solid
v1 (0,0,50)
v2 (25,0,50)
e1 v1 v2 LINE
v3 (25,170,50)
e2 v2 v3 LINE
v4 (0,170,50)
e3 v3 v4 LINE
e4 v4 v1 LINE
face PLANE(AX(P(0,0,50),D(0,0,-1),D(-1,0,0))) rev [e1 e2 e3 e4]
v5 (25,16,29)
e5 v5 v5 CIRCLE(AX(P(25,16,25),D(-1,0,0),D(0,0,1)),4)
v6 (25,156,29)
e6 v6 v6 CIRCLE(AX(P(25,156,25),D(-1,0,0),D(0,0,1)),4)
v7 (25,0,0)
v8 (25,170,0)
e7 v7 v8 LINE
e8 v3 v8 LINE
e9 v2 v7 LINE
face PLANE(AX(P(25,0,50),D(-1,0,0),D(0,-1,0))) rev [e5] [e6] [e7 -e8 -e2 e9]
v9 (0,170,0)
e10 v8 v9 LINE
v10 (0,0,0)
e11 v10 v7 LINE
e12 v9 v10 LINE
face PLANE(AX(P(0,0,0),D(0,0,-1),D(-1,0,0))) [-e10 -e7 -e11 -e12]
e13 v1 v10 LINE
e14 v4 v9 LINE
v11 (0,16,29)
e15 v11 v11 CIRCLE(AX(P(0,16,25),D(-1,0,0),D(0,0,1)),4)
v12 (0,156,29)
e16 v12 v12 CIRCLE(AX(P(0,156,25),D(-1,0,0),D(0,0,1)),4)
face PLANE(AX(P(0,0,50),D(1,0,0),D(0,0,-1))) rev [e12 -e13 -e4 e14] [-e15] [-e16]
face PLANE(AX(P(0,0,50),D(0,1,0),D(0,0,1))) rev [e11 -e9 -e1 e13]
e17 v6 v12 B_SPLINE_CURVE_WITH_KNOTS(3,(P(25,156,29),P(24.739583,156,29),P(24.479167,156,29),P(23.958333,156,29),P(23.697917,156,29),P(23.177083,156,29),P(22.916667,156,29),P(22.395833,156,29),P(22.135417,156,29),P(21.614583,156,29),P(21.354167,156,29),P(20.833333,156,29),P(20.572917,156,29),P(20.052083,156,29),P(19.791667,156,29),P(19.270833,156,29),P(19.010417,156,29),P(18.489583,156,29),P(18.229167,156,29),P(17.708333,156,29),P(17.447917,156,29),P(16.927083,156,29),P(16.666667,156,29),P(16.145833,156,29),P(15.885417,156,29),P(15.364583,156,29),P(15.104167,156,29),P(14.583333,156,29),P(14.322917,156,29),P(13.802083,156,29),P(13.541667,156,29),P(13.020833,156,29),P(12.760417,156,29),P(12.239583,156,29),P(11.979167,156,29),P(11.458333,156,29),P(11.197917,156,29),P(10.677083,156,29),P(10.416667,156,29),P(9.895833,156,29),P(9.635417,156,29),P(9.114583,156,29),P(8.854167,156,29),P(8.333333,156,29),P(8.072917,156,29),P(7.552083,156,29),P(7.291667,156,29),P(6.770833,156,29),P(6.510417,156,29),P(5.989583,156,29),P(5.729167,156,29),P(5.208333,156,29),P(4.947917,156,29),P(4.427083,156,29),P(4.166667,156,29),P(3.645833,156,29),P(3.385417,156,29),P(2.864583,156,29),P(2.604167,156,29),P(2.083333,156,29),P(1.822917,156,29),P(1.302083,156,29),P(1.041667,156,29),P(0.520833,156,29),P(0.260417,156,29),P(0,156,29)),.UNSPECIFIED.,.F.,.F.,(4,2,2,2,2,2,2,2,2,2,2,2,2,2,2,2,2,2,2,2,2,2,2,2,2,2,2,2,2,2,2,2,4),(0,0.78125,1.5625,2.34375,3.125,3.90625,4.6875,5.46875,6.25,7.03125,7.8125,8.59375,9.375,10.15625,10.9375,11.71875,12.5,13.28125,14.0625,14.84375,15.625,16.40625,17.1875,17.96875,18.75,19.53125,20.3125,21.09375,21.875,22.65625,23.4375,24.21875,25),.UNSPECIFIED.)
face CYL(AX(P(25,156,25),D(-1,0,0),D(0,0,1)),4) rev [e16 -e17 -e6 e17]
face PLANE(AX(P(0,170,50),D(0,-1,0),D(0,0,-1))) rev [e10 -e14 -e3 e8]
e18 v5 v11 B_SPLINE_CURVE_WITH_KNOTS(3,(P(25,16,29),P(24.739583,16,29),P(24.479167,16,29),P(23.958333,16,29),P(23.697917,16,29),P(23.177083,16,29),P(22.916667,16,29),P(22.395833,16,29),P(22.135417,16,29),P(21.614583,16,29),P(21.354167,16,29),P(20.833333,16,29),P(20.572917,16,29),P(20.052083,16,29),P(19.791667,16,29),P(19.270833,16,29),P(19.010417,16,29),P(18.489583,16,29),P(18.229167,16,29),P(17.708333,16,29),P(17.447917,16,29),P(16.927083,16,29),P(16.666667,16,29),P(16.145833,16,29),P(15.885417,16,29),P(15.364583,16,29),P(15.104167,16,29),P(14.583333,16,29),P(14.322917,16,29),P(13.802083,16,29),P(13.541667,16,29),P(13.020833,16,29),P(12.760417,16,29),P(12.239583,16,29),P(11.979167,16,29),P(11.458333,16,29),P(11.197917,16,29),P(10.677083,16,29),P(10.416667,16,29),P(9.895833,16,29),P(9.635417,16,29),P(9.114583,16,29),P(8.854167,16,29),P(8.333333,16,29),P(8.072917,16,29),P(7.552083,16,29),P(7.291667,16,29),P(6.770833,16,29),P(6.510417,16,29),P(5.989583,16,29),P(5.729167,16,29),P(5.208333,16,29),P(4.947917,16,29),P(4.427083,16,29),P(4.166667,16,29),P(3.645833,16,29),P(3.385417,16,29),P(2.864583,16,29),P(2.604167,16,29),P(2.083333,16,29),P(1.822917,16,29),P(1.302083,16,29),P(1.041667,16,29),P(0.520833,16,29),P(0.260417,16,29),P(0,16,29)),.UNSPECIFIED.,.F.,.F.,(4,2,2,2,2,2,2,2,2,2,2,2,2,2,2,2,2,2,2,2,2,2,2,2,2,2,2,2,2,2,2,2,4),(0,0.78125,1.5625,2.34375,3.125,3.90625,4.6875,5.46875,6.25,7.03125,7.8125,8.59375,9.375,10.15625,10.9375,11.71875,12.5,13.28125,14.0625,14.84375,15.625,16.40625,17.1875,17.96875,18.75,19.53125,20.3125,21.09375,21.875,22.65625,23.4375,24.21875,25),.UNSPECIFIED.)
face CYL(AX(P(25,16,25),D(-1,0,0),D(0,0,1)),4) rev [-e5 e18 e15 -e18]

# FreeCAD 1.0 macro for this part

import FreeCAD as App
import Part
import Sketcher
Q = App.Units.Quantity

doc = App.newDocument("Part")
body = doc.addObject("PartDesign::Body", "Body")

# Sketch on XY plane
sketch1 = body.newObject("Sketcher::SketchObject", "Sketch")
sketch1.AttachmentSupport = (doc.getObject("XY_Plane"), [""])
sketch1.MapMode = "FlatFace"
sketch1.addGeometry([
    Part.LineSegment(App.Vector(0, 170, 0), App.Vector(0, 0, 0)),
    Part.LineSegment(App.Vector(0, 0, 0), App.Vector(25, 0, 0)),
    Part.LineSegment(App.Vector(25, 0, 0), App.Vector(25, 170, 0)),
    Part.LineSegment(App.Vector(25, 170, 0), App.Vector(0, 170, 0)),
], False)
sketch1.addConstraint([
    Sketcher.Constraint("Coincident", 0, 2, 1, 1),
    Sketcher.Constraint("Coincident", 1, 2, 2, 1),
    Sketcher.Constraint("Coincident", 2, 2, 3, 1),
    Sketcher.Constraint("Coincident", 3, 2, 0, 1),
    Sketcher.Constraint("Vertical", 0),
    Sketcher.Constraint("Horizontal", 1),
    Sketcher.Constraint("Vertical", 2),
    Sketcher.Constraint("Horizontal", 3),
    Sketcher.Constraint("Coincident", 0, 2, -1, 1),
    Sketcher.Constraint("DistanceX", 1, 1, 1, 2, Q("25 mm")),
    Sketcher.Constraint("DistanceY", 0, 2, 0, 1, Q("170 mm")),
])
pad1 = body.newObject("PartDesign::Pad", "Pad")
pad1.Profile = sketch1
pad1.Length = 50

# Sketch on YZ plane
sketch2 = body.newObject("Sketcher::SketchObject", "Sketch001")
sketch2.AttachmentSupport = (doc.getObject("YZ_Plane"), [""])
sketch2.MapMode = "FlatFace"
sketch2.addGeometry([
    Part.Circle(App.Vector(16, 25, 0), App.Vector(0, 0, 1), 4),
    Part.Circle(App.Vector(156, 25, 0), App.Vector(0, 0, 1), 4),
], False)
sketch2.addConstraint([
    Sketcher.Constraint("Equal", 0, 1),
    Sketcher.Constraint("Horizontal", 0, 3, 1, 3),
    Sketcher.Constraint("Diameter", 0, Q("8 mm")),
    Sketcher.Constraint("DistanceX", -1, 1, 0, 3, Q("16 mm")),
    Sketcher.Constraint("DistanceY", -1, 1, 0, 3, Q("25 mm")),
    Sketcher.Constraint("DistanceX", -1, 1, 1, 3, Q("156 mm")),
])
pocket1 = body.newObject("PartDesign::Pocket", "Pocket")
pocket1.Profile = sketch2
pocket1.Type = "ThroughAll"
pocket1.Reversed = True

doc.recompute()
